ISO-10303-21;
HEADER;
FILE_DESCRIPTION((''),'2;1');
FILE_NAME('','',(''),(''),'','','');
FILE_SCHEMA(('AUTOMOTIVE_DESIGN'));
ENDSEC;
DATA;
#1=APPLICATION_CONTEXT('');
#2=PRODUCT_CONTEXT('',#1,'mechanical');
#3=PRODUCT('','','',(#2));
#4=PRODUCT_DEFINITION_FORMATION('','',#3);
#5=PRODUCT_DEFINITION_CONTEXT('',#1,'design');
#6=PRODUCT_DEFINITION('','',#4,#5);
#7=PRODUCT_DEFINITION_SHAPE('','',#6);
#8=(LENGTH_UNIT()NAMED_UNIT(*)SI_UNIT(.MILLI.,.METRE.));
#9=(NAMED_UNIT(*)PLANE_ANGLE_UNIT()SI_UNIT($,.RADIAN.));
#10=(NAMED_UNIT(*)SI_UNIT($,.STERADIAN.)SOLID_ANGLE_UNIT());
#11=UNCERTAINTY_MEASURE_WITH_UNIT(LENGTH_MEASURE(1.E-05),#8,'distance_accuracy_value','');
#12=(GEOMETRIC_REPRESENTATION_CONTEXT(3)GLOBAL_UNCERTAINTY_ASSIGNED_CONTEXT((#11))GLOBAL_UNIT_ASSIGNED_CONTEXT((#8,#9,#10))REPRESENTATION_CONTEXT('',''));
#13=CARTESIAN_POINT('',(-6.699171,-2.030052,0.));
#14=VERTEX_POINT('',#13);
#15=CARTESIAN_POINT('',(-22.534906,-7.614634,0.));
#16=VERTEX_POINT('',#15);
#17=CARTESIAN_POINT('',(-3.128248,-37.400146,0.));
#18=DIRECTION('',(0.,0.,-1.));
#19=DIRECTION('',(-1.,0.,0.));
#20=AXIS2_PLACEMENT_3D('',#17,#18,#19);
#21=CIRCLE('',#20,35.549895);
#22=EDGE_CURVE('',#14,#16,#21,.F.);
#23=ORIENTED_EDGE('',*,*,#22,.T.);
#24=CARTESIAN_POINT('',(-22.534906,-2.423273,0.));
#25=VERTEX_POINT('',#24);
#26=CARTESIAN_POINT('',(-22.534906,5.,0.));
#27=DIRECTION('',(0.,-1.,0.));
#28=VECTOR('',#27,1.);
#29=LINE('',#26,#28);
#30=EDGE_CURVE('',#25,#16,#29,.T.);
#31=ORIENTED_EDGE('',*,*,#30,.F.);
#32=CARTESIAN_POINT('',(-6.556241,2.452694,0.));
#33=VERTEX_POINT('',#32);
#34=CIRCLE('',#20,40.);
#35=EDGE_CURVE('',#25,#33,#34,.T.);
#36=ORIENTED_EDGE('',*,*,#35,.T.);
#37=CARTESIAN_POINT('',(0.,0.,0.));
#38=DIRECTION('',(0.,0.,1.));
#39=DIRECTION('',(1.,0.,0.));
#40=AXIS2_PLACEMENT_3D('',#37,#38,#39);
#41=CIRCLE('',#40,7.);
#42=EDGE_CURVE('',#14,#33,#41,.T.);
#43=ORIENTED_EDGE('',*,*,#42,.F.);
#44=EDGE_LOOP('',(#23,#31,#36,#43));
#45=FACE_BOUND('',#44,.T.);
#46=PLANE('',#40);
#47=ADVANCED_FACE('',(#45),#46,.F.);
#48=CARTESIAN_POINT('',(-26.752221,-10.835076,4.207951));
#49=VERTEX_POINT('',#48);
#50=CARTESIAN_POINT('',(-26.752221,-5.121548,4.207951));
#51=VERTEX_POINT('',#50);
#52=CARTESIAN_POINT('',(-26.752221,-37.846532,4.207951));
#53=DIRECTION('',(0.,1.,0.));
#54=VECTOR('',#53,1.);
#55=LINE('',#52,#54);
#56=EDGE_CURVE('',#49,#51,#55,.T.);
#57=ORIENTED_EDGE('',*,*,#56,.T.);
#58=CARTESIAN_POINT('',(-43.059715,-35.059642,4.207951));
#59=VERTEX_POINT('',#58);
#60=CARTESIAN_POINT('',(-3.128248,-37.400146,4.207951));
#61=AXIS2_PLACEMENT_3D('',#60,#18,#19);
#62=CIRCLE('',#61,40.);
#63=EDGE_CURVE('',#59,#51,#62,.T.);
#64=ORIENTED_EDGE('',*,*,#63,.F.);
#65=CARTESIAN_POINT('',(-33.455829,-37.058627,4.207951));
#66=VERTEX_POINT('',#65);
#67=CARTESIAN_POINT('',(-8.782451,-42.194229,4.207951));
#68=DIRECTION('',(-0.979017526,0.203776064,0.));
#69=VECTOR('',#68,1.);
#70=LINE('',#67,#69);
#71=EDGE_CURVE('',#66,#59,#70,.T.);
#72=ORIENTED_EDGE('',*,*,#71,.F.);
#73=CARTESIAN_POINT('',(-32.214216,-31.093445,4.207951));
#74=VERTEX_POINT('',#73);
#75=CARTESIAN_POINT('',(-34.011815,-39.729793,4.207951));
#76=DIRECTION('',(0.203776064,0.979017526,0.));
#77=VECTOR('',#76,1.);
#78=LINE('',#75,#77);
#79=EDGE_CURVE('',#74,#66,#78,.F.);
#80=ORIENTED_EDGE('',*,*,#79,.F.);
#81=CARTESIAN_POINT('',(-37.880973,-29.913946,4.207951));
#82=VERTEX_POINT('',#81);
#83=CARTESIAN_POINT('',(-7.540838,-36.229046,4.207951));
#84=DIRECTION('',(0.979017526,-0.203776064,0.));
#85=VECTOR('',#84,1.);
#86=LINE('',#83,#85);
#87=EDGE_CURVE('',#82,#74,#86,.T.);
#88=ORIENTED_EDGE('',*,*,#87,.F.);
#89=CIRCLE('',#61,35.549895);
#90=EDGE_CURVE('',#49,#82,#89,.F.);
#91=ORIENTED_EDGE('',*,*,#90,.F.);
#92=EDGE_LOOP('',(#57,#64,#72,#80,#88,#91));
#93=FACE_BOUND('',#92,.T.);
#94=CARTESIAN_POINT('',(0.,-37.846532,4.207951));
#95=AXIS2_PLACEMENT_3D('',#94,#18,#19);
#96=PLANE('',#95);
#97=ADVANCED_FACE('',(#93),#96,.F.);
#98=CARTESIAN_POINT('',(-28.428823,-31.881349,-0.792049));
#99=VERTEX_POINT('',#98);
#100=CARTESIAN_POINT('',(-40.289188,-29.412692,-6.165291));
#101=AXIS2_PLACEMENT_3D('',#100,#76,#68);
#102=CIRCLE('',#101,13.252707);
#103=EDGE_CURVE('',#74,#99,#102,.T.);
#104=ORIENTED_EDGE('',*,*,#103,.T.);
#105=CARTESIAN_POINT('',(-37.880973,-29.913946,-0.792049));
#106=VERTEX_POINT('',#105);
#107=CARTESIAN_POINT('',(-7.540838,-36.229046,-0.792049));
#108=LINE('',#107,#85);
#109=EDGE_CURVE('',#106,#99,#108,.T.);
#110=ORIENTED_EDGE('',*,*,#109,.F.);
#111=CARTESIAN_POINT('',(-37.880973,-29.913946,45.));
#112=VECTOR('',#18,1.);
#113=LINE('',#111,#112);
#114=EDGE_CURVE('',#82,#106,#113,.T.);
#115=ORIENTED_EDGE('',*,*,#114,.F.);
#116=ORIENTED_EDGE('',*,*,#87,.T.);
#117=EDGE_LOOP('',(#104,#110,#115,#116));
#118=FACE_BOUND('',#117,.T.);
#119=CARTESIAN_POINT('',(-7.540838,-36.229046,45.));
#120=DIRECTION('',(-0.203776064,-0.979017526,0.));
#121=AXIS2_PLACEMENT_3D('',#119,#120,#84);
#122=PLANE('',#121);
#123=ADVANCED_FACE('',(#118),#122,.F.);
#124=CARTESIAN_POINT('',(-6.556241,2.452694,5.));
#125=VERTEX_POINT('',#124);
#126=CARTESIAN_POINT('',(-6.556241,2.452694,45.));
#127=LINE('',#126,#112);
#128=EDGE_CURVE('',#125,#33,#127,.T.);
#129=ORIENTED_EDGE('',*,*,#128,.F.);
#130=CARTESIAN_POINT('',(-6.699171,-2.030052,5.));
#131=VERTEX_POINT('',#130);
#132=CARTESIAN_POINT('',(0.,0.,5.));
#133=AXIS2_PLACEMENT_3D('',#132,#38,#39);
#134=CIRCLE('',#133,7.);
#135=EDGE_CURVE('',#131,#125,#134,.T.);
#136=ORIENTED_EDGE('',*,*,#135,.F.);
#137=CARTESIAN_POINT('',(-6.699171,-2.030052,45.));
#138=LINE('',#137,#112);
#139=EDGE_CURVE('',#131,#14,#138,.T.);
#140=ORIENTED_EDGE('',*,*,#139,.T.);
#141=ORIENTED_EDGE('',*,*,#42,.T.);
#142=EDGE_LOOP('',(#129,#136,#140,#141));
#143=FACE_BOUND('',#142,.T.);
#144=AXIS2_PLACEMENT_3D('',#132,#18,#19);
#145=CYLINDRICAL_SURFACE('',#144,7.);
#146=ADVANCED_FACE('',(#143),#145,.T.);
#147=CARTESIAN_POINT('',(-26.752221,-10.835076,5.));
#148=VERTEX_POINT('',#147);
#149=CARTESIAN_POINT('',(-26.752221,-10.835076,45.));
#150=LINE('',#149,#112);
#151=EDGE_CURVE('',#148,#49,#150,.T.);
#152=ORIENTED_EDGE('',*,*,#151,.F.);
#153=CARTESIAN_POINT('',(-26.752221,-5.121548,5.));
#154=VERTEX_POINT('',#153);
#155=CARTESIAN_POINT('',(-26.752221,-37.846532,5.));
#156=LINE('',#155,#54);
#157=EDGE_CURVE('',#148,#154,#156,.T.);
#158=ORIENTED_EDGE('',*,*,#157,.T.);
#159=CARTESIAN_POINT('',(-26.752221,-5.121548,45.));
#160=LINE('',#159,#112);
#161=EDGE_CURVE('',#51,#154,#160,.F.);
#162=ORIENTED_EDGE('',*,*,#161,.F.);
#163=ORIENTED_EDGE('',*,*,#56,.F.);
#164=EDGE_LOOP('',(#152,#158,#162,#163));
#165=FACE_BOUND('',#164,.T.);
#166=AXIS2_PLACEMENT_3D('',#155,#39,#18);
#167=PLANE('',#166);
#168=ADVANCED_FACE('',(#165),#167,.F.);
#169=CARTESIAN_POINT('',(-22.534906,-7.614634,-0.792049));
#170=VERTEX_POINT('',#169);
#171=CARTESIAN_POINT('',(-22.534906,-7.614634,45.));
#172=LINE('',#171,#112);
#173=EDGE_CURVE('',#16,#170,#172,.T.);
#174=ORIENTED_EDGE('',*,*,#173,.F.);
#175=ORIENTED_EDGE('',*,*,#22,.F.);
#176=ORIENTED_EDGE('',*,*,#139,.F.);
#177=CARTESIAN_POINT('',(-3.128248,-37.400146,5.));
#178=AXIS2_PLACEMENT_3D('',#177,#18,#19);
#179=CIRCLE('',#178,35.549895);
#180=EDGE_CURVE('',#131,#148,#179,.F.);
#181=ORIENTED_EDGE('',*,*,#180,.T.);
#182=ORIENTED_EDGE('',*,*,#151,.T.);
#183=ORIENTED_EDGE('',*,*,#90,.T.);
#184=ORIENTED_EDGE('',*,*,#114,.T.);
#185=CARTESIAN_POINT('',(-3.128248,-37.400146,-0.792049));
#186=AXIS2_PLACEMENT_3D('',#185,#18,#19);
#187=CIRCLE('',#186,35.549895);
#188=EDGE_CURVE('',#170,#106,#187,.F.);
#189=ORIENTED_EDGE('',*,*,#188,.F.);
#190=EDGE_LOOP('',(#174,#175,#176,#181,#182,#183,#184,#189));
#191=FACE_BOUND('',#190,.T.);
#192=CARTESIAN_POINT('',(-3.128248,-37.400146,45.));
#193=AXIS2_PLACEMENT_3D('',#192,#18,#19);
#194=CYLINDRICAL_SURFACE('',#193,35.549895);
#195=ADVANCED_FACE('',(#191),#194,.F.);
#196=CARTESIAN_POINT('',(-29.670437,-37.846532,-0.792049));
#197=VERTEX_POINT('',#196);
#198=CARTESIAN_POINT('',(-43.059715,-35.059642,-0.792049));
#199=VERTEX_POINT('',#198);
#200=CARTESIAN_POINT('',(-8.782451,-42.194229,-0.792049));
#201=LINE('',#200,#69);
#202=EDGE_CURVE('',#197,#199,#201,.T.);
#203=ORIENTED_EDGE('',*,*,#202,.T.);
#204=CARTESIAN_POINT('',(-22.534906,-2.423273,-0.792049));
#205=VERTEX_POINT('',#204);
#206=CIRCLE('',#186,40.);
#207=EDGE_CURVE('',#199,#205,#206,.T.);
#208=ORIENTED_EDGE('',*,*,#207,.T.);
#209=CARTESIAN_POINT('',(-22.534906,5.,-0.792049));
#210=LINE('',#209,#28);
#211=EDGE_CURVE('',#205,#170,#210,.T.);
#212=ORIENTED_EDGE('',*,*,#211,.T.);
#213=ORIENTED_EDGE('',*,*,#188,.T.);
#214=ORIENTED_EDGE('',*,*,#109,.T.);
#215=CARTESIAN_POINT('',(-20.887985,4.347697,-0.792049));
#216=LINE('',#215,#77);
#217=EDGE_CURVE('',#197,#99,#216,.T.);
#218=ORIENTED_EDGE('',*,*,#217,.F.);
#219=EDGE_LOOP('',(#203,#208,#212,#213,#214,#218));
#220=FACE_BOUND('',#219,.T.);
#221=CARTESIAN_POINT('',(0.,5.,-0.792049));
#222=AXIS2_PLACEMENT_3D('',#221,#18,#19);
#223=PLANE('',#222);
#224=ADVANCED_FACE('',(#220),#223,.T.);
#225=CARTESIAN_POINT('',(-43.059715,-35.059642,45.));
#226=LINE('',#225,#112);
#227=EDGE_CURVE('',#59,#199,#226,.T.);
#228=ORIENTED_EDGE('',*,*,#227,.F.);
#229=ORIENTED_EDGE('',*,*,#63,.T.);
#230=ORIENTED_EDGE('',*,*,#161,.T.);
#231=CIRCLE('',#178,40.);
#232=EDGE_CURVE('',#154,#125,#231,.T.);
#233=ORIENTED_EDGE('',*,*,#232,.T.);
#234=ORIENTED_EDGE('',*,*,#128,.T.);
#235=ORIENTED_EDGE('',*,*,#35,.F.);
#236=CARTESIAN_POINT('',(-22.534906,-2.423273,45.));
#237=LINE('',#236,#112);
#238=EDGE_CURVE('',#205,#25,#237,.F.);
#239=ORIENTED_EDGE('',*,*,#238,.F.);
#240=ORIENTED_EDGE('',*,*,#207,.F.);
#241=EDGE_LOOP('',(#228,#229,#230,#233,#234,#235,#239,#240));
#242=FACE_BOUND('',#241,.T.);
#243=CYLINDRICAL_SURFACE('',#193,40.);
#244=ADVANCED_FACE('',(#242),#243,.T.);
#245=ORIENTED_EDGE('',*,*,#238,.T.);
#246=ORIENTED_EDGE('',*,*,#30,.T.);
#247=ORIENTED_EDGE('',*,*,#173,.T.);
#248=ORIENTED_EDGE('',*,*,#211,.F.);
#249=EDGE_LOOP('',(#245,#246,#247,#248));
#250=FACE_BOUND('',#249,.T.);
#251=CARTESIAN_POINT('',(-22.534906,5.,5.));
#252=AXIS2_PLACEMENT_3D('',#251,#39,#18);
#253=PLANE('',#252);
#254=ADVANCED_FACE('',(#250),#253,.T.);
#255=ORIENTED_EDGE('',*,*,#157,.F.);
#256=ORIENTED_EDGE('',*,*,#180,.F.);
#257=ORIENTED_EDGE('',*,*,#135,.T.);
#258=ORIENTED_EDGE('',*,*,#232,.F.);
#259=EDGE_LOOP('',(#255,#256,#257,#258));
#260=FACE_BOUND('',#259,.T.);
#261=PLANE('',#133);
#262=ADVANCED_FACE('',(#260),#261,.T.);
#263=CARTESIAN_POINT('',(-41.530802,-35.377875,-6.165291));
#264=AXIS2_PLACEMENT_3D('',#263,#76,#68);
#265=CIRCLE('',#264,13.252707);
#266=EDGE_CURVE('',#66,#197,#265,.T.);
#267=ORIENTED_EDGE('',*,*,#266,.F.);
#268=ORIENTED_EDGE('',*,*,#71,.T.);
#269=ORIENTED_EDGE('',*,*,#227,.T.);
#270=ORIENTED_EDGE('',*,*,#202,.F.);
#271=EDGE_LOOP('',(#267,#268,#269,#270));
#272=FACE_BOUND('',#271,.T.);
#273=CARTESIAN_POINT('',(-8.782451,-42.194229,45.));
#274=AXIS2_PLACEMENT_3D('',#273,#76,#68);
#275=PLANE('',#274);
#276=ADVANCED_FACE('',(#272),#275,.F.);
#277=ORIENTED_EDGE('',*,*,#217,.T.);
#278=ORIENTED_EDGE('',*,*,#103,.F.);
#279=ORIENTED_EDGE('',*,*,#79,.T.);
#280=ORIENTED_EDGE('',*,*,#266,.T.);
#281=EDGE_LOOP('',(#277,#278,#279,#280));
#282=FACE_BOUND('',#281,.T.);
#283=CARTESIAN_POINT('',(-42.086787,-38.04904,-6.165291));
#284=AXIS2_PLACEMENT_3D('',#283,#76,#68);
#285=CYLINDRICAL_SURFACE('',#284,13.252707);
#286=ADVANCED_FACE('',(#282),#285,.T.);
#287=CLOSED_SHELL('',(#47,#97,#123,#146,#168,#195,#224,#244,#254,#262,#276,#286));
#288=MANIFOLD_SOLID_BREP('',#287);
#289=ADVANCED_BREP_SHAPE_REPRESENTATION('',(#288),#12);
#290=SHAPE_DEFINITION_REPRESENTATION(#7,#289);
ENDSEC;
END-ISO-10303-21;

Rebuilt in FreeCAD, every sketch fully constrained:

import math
import FreeCAD as App
import Part
import Sketcher

V = App.Vector

doc = App.newDocument("Part")
body = doc.addObject("PartDesign::Body", "Body")

# Sketch on XY plane
sketch1 = body.newObject("Sketcher::SketchObject", "Sketch")
sketch1.AttachmentSupport = (doc.getObject("XY_Plane"), [""])
sketch1.MapMode = "FlatFace"
sketch1.addGeometry(Part.Circle(V(0, 0, 0), V(0, 0, 1), 7), False)
sketch1.addConstraint(Sketcher.Constraint("Coincident", 0, 3, -1, 1))
sketch1.addConstraint(Sketcher.Constraint("Diameter", 0, 14.0))
pad1 = body.newObject("PartDesign::Pad", "Pad")
pad1.Profile = sketch1
pad1.Length = 5

# Sketch on XY plane
sketch2 = body.newObject("Sketcher::SketchObject", "Sketch001")
sketch2.AttachmentSupport = (doc.getObject("XY_Plane"), [""])
sketch2.MapMode = "FlatFace"
sketch2.addGeometry(Part.ArcOfCircle(Part.Circle(V(-3.128248, -37.400146, 0), V(0, 0, 1), 40), math.radians(94.916268), math.radians(176.645559)), False)
sketch2.addGeometry(Part.LineSegment(V(-43.059715, -35.059642, 0), V(-29.670437, -37.846532, 0)), False)
sketch2.addGeometry(Part.LineSegment(V(-29.670437, -37.846532, 0), V(-28.428823, -31.881349, 0)), False)
sketch2.addGeometry(Part.LineSegment(V(-28.428823, -31.881349, 0), V(-37.880973, -29.913946, 0)), False)
sketch2.addGeometry(Part.ArcOfCircle(Part.Circle(V(-3.128248, -37.400146, 0), V(0, 0, 1), 35.549895), math.radians(95.76498), math.radians(167.843487)), False)
sketch2.addGeometry(Part.ArcOfCircle(Part.Circle(V(0, 0, 0), V(0, 0, 1), 7), math.radians(159.489141), math.radians(196.858399)), False)
sketch2.addConstraint(Sketcher.Constraint("Coincident", 0, 2, 1, 1))
sketch2.addConstraint(Sketcher.Constraint("Coincident", 1, 2, 2, 1))
sketch2.addConstraint(Sketcher.Constraint("Coincident", 2, 2, 3, 1))
sketch2.addConstraint(Sketcher.Constraint("Coincident", 3, 2, 4, 2))
sketch2.addConstraint(Sketcher.Constraint("Coincident", 4, 1, 5, 2))
sketch2.addConstraint(Sketcher.Constraint("Coincident", 5, 1, 0, 1))
sketch2.addConstraint(Sketcher.Constraint("Coincident", 5, 3, -1, 1))
sketch2.addConstraint(Sketcher.Constraint("Coincident", 4, 3, 0, 3))
sketch2.addConstraint(Sketcher.Constraint("Perpendicular", 1, 2))
sketch2.addConstraint(Sketcher.Constraint("Perpendicular", 2, 3))
sketch2.addConstraint(Sketcher.Constraint("Radius", 0, 40.0))
sketch2.addConstraint(Sketcher.Constraint("Radius", 5, 7.0))
sketch2.addConstraint(Sketcher.Constraint("Radius", 4, 35.549895))
sketch2.addConstraint(Sketcher.Constraint("DistanceY", 4, 3, 3, 2, 7.486199))
sketch2.addConstraint(Sketcher.Constraint("DistanceX", 3, 2, 4, 1, 31.181802))
sketch2.addConstraint(Sketcher.Constraint("Distance", 1, 13.676239))
sketch2.addConstraint(Sketcher.Constraint("Distance", 2, 6.093029))
sketch2.addConstraint(Sketcher.Constraint("Distance", 3, 9.654729))
sketch2.addConstraint(Sketcher.Constraint("DistanceX", 0, 3, -1, 1, 3.128248))
pad2 = body.newObject("PartDesign::Pad", "Pad001")
pad2.Profile = sketch2
pad2.Length = 45

# Sketch on XZ plane
sketch3 = body.newObject("Sketcher::SketchObject", "Sketch002")
sketch3.AttachmentSupport = (doc.getObject("XZ_Plane"), [""])
sketch3.MapMode = "FlatFace"
sketch3.AttachmentOffset = App.Placement(V(0, 0, 73.880032), App.Rotation())
sketch3.addGeometry(Part.LineSegment(V(-6.556241, 21.643777, 0), V(-6.556241, 5, 0)), False)
sketch3.addGeometry(Part.LineSegment(V(-6.556241, 5, 0), V(-22.534906, 5, 0)), False)
sketch3.addGeometry(Part.LineSegment(V(-22.534906, 5, 0), V(-22.534906, 5.792049, 0)), False)
sketch3.addGeometry(Part.LineSegment(V(-22.534906, 5.792049, 0), V(-43.059715, 5.792049, 0)), False)
sketch3.addGeometry(Part.LineSegment(V(-43.059715, 5.792049, 0), V(-43.059715, 53.527021, 0)), False)
sketch3.addGeometry(Part.LineSegment(V(-43.059715, 53.527021, 0), V(-6.425184, 53.527021, 0)), False)
sketch3.addGeometry(Part.LineSegment(V(-6.425184, 53.527021, 0), V(-6.556241, 21.643777, 0)), False)
sketch3.addConstraint(Sketcher.Constraint("Coincident", 0, 2, 1, 1))
sketch3.addConstraint(Sketcher.Constraint("Coincident", 1, 2, 2, 1))
sketch3.addConstraint(Sketcher.Constraint("Coincident", 2, 2, 3, 1))
sketch3.addConstraint(Sketcher.Constraint("Coincident", 3, 2, 4, 1))
sketch3.addConstraint(Sketcher.Constraint("Coincident", 4, 2, 5, 1))
sketch3.addConstraint(Sketcher.Constraint("Coincident", 5, 2, 6, 1))
sketch3.addConstraint(Sketcher.Constraint("Coincident", 6, 2, 0, 1))
sketch3.addConstraint(Sketcher.Constraint("Vertical", 0))
sketch3.addConstraint(Sketcher.Constraint("Horizontal", 1))
sketch3.addConstraint(Sketcher.Constraint("Vertical", 2))
sketch3.addConstraint(Sketcher.Constraint("Horizontal", 3))
sketch3.addConstraint(Sketcher.Constraint("Vertical", 4))
sketch3.addConstraint(Sketcher.Constraint("Horizontal", 5))
sketch3.addConstraint(Sketcher.Constraint("DistanceY", -1, 1, 0, 2, 5.0))
sketch3.addConstraint(Sketcher.Constraint("DistanceX", 3, 2, 3, 1, 20.524809))
sketch3.addConstraint(Sketcher.Constraint("DistanceX", 5, 1, 5, 2, 36.634531))
sketch3.addConstraint(Sketcher.Constraint("DistanceY", 2, 1, 2, 2, 0.792049))
sketch3.addConstraint(Sketcher.Constraint("DistanceY", 4, 1, 4, 2, 47.734971))
sketch3.addConstraint(Sketcher.Constraint("DistanceX", 1, 2, 1, 1, 15.978665))
sketch3.addConstraint(Sketcher.Constraint("DistanceY", 0, 2, 0, 1, 16.643777))
sketch3.addConstraint(Sketcher.Constraint("DistanceX", 0, 2, -1, 1, 6.556241))
pocket1 = body.newObject("PartDesign::Pocket", "Pocket")
pocket1.Profile = sketch3
pocket1.Length = 78.880032

# Sketch on XZ plane
sketch4 = body.newObject("Sketcher::SketchObject", "Sketch003")
sketch4.AttachmentSupport = (doc.getObject("XZ_Plane"), [""])
sketch4.MapMode = "FlatFace"
sketch4.addGeometry(Part.LineSegment(V(-43.059715, 0, 0), V(-43.059715, 0.792049, 0)), False)
sketch4.addGeometry(Part.LineSegment(V(-43.059715, 0.792049, 0), V(-26.752221, 0.792049, 0)), False)
sketch4.addGeometry(Part.LineSegment(V(-26.752221, 0.792049, 0), V(-26.752221, 0, 0)), False)
sketch4.addGeometry(Part.LineSegment(V(-26.752221, 0, 0), V(-43.059715, 0, 0)), False)
sketch4.addConstraint(Sketcher.Constraint("Coincident", 0, 2, 1, 1))
sketch4.addConstraint(Sketcher.Constraint("Coincident", 1, 2, 2, 1))
sketch4.addConstraint(Sketcher.Constraint("Coincident", 2, 2, 3, 1))
sketch4.addConstraint(Sketcher.Constraint("Coincident", 3, 2, 0, 1))
sketch4.addConstraint(Sketcher.Constraint("Vertical", 0))
sketch4.addConstraint(Sketcher.Constraint("Horizontal", 1))
sketch4.addConstraint(Sketcher.Constraint("Vertical", 2))
sketch4.addConstraint(Sketcher.Constraint("Horizontal", 3))
sketch4.addConstraint(Sketcher.Constraint("PointOnObject", 2, 2, -1))
sketch4.addConstraint(Sketcher.Constraint("DistanceY", 0, 1, 0, 2, 0.792049))
sketch4.addConstraint(Sketcher.Constraint("DistanceX", 1, 1, 1, 2, 16.307494))
sketch4.addConstraint(Sketcher.Constraint("DistanceX", 1, 2, -1, 1, 26.752221))
pocket2 = body.newObject("PartDesign::Pocket", "Pocket001")
pocket2.Profile = sketch4
pocket2.Type = "ThroughAll"
pocket2.Reversed = True

# Sketch on an angled plane
sketch5 = body.newObject("Sketcher::SketchObject", "Sketch004")
sketch5.Placement = App.Placement(V(-7.540838, -36.229046, 0), App.Rotation(V(0.979017526, -0.203776064, 0), V(0, 0, -1), V(0.203776064, 0.979017526, 0), "ZXY"))
sketch5.addGeometry(Part.LineSegment(V(-21.33566, -0.792049, 0), V(-25.202182, -0.792049, 0)), False)
sketch5.addGeometry(Part.ArcOfCircle(Part.Circle(V(-33.450219, -11.165291, 0), V(0, 0, 1), 13.252707), math.radians(23.919004), math.radians(51.510868)), False)
sketch5.addGeometry(Part.LineSegment(V(-21.33566, -5.792049, 0), V(-21.33566, -0.792049, 0)), False)
sketch5.addConstraint(Sketcher.Constraint("Coincident", 0, 2, 1, 2))
sketch5.addConstraint(Sketcher.Constraint("Coincident", 1, 1, 2, 1))
sketch5.addConstraint(Sketcher.Constraint("Coincident", 2, 2, 0, 1))
sketch5.addConstraint(Sketcher.Constraint("Horizontal", 0))
sketch5.addConstraint(Sketcher.Constraint("Vertical", 2))
sketch5.addConstraint(Sketcher.Constraint("DistanceY", 2, 1, 2, 2, 5.0))
sketch5.addConstraint(Sketcher.Constraint("Radius", 1, 13.252707))
sketch5.addConstraint(Sketcher.Constraint("DistanceX", 0, 2, 0, 1, 3.866522))
sketch5.addConstraint(Sketcher.Constraint("DistanceX", 1, 3, -1, 1, 33.450219))
sketch5.addConstraint(Sketcher.Constraint("DistanceY", 1, 3, -1, 1, 11.165291))
pocket3 = body.newObject("PartDesign::Pocket", "Pocket002")
pocket3.Profile = sketch5
pocket3.Type = "ThroughAll"
doc.recompute()

datumplane = body.newObject("PartDesign::Plane", "DatumPlane")
datumplane.AttachmentSupport = (doc.getObject("XY_Plane"), [""])
datumplane.MapMode = "FlatFace"
datumplane.AttachmentOffset = App.Placement(V(0, 0, 2.5), App.Rotation())
mirrored = body.newObject("PartDesign::Mirrored", "Mirrored")
mirrored.Originals = [pad2, pocket1, pocket2, pocket3]
mirrored.MirrorPlane = (datumplane, [""])
body.Tip = mirrored

# Sketch on XZ plane
sketch6 = body.newObject("Sketcher::SketchObject", "Sketch005")
sketch6.AttachmentSupport = (doc.getObject("XZ_Plane"), [""])
sketch6.MapMode = "FlatFace"
sketch6.addGeometry(Part.LineSegment(V(-22.534906, 1196.824916, 0), V(-22.534906, 5, 0)), False)
sketch6.addGeometry(Part.LineSegment(V(-22.534906, 5, 0), V(-43.059715, 5, 0)), False)
sketch6.addGeometry(Part.LineSegment(V(-43.059715, 5, 0), V(-43.059715, 5.792049, 0)), False)
sketch6.addGeometry(Part.LineSegment(V(-43.059715, 5.792049, 0), V(-28.704022, 5.792049, 0)), False)
sketch6.addGeometry(Part.LineSegment(V(-28.704022, 5.792049, 0), V(-22.534906, 1196.824916, 0)), False)
sketch6.addConstraint(Sketcher.Constraint("Coincident", 0, 2, 1, 1))
sketch6.addConstraint(Sketcher.Constraint("Coincident", 1, 2, 2, 1))
sketch6.addConstraint(Sketcher.Constraint("Coincident", 2, 2, 3, 1))
sketch6.addConstraint(Sketcher.Constraint("Coincident", 3, 2, 4, 1))
sketch6.addConstraint(Sketcher.Constraint("Coincident", 4, 2, 0, 1))
sketch6.addConstraint(Sketcher.Constraint("Vertical", 0))
sketch6.addConstraint(Sketcher.Constraint("Horizontal", 1))
sketch6.addConstraint(Sketcher.Constraint("Vertical", 2))
sketch6.addConstraint(Sketcher.Constraint("Horizontal", 3))
sketch6.addConstraint(Sketcher.Constraint("DistanceY", -1, 1, 0, 2, 5.0))
sketch6.addConstraint(Sketcher.Constraint("DistanceX", 1, 2, 1, 1, 20.524809))
sketch6.addConstraint(Sketcher.Constraint("DistanceY", 2, 1, 2, 2, 0.792049))
sketch6.addConstraint(Sketcher.Constraint("DistanceX", 3, 1, 3, 2, 14.355693))
sketch6.addConstraint(Sketcher.Constraint("DistanceY", 0, 2, 0, 1, 1191.824916))
sketch6.addConstraint(Sketcher.Constraint("DistanceX", 0, 2, -1, 1, 22.534906))
pocket4 = body.newObject("PartDesign::Pocket", "Pocket003")
pocket4.Profile = sketch6
pocket4.Type = "ThroughAll"
pocket4.Reversed = True

doc.recompute()
